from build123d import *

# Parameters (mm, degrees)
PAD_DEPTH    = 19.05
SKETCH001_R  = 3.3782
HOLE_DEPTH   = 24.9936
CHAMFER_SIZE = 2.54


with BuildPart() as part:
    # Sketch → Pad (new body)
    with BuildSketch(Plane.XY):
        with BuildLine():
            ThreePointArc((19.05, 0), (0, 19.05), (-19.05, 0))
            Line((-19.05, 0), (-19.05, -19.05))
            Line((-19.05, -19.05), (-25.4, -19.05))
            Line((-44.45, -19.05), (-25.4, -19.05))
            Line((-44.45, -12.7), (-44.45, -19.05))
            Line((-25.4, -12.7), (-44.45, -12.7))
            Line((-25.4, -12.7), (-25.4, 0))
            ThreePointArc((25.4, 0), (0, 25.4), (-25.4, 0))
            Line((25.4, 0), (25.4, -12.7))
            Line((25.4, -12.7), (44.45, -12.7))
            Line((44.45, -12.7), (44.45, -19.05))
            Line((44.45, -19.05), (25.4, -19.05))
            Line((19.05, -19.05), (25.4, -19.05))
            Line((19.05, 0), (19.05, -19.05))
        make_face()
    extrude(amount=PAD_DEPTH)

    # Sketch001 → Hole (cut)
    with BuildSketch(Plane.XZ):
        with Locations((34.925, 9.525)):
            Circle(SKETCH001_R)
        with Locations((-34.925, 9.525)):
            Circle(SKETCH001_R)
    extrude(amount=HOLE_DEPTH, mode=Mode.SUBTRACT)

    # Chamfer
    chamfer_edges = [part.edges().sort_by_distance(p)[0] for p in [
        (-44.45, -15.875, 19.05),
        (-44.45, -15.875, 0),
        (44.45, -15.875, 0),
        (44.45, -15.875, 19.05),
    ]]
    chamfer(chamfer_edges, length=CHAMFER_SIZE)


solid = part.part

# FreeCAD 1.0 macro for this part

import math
import FreeCAD as App
import Part
import Sketcher

V = App.Vector
Q = App.Units.Quantity


def edges_at(feature, points):
    """Names of the edges that pass closest to the given points."""
    edges = feature.Shape.Edges
    near = lambda p: min(range(len(edges)), key=lambda i: edges[i].distToShape(Part.Vertex(*p))[0])
    return sorted({f"Edge{near(p) + 1}" for p in points})

doc = App.newDocument("Part")
params = doc.addObject("Spreadsheet::Sheet", "Params")
for row, (alias, value) in enumerate([
    ("sketch1_radius", "1 in"),
    ("sketch1_width", "1 in"),
    ("sketch1_radius2", "0.75 in"),
    ("sketch1_height", "0.5 in"),
    ("pad1_length", "0.75 in"),
    ("sketch2_diameter", "0.266 in"),
    ("pocket1_length", "0.984 in"),
    ("chamfer_size", "0.1 in"),
], start=1):
    params.set(f"A{row}", alias)
    params.set(f"B{row}", "=" + value)
    params.setAlias(f"B{row}", alias)

body = doc.addObject("PartDesign::Body", "Body")

sketch1 = body.newObject("Sketcher::SketchObject", "Sketch")
sketch1.AttachmentSupport = (doc.getObject("XY_Plane"), [""])
sketch1.MapMode = "FlatFace"
sketch1.addGeometry([
    Part.ArcOfCircle(Part.Circle(V(0, 0, 0), V(0, 0, 1), 19), math.radians(0), math.radians(180)),
    Part.LineSegment(V(19, 0, 0), V(19, -19, 0)),
    Part.LineSegment(V(19, -19, 0), V(44, -19, 0)),
    Part.LineSegment(V(44, -19, 0), V(44, -13, 0)),
    Part.LineSegment(V(44, -13, 0), V(25, -13, 0)),
    Part.LineSegment(V(25, -13, 0), V(25, 0, 0)),
    Part.ArcOfCircle(Part.Circle(V(0, 0, 0), V(0, 0, 1), 25), math.radians(0), math.radians(180)),
    Part.LineSegment(V(-25, 0, 0), V(-25, -13, 0)),
    Part.LineSegment(V(-25, -13, 0), V(-44, -13, 0)),
    Part.LineSegment(V(-44, -13, 0), V(-44, -19, 0)),
    Part.LineSegment(V(-44, -19, 0), V(-19, -19, 0)),
    Part.LineSegment(V(-19, -19, 0), V(-19, 0, 0)),
], False)
sketch1.addConstraint([
    Sketcher.Constraint("Tangent", 0, 1, 1, 1),
    Sketcher.Constraint("Coincident", 1, 2, 2, 1),
    Sketcher.Constraint("Coincident", 2, 2, 3, 1),
    Sketcher.Constraint("Coincident", 3, 2, 4, 1),
    Sketcher.Constraint("Coincident", 4, 2, 5, 1),
    Sketcher.Constraint("Tangent", 5, 2, 6, 1),
    Sketcher.Constraint("Tangent", 6, 2, 7, 1),
    Sketcher.Constraint("Coincident", 7, 2, 8, 1),
    Sketcher.Constraint("Coincident", 8, 2, 9, 1),
    Sketcher.Constraint("Coincident", 9, 2, 10, 1),
    Sketcher.Constraint("Coincident", 10, 2, 11, 1),
    Sketcher.Constraint("Tangent", 11, 2, 0, 2),
    Sketcher.Constraint("Vertical", 1),
    Sketcher.Constraint("Horizontal", 2),
    Sketcher.Constraint("Vertical", 3),
    Sketcher.Constraint("Horizontal", 4),
    Sketcher.Constraint("Vertical", 5),
    Sketcher.Constraint("Vertical", 7),
    Sketcher.Constraint("Horizontal", 8),
    Sketcher.Constraint("Vertical", 9),
    Sketcher.Constraint("Horizontal", 10),
    Sketcher.Constraint("Vertical", 11),
    Sketcher.Constraint("Coincident", 0, 3, -1, 1),
    Sketcher.Constraint("Coincident", 6, 3, -1, 1),
    Sketcher.Constraint("Symmetric", 3, 2, 8, 2, -2),
    Sketcher.Constraint("Horizontal", 2, 2, 9, 2),
    Sketcher.Constraint("Equal", 8, 1),
    Sketcher.Constraint("Radius", 6, Q("1 in")),
    Sketcher.Constraint("DistanceX", 2, 1, 2, 2, Q("1 in")),
    Sketcher.Constraint("Radius", 0, Q("0.75 in")),
    Sketcher.Constraint("DistanceY", 5, 1, 5, 2, Q("0.5 in")),
])
sketch1.setExpression("Constraints[27]", "Params.sketch1_radius")
sketch1.setExpression("Constraints[28]", "Params.sketch1_width")
sketch1.setExpression("Constraints[29]", "Params.sketch1_radius2")
sketch1.setExpression("Constraints[30]", "Params.sketch1_height")
pad1 = body.newObject("PartDesign::Pad", "Pad")
pad1.Profile = sketch1
pad1.setExpression("Length", "Params.pad1_length")

sketch2 = body.newObject("Sketcher::SketchObject", "Sketch001")
sketch2.AttachmentSupport = (doc.getObject("XZ_Plane"), [""])
sketch2.MapMode = "FlatFace"
sketch2.addGeometry([
    Part.Circle(V(34.9, 9.5, 0), V(0, 0, 1), 3.4),
    Part.Circle(V(-34.9, 9.5, 0), V(0, 0, 1), 3.4),
], False)
sketch2.addConstraint([
    Sketcher.Constraint("Equal", 0, 1),
    Sketcher.Constraint("Symmetric", 0, 3, 1, 3, -2),
    Sketcher.Constraint("Diameter", 0, Q("0.266 in")),
    Sketcher.Constraint("DistanceX", 1, 3, 0, 3, Q("2.75 in")),
    Sketcher.Constraint("DistanceY", -1, 1, 0, 3, Q("0.375 in")),
])
sketch2.setExpression("Constraints[2]", "Params.sketch2_diameter")
pocket1 = body.newObject("PartDesign::Pocket", "Pocket")
pocket1.Profile = sketch2
pocket1.setExpression("Length", "Params.pocket1_length")
pocket1.Reversed = True
doc.recompute()

chamfer = body.newObject("PartDesign::Chamfer", "Chamfer")
chamfer.Base = (pocket1, edges_at(pocket1, [
    (-44.45, -15.875, 19.05),
    (-44.45, -15.875, 0),
    (44.45, -15.875, 0),
    (44.45, -15.875, 19.05),
]))
chamfer.setExpression("Size", "Params.chamfer_size")

doc.recompute()
